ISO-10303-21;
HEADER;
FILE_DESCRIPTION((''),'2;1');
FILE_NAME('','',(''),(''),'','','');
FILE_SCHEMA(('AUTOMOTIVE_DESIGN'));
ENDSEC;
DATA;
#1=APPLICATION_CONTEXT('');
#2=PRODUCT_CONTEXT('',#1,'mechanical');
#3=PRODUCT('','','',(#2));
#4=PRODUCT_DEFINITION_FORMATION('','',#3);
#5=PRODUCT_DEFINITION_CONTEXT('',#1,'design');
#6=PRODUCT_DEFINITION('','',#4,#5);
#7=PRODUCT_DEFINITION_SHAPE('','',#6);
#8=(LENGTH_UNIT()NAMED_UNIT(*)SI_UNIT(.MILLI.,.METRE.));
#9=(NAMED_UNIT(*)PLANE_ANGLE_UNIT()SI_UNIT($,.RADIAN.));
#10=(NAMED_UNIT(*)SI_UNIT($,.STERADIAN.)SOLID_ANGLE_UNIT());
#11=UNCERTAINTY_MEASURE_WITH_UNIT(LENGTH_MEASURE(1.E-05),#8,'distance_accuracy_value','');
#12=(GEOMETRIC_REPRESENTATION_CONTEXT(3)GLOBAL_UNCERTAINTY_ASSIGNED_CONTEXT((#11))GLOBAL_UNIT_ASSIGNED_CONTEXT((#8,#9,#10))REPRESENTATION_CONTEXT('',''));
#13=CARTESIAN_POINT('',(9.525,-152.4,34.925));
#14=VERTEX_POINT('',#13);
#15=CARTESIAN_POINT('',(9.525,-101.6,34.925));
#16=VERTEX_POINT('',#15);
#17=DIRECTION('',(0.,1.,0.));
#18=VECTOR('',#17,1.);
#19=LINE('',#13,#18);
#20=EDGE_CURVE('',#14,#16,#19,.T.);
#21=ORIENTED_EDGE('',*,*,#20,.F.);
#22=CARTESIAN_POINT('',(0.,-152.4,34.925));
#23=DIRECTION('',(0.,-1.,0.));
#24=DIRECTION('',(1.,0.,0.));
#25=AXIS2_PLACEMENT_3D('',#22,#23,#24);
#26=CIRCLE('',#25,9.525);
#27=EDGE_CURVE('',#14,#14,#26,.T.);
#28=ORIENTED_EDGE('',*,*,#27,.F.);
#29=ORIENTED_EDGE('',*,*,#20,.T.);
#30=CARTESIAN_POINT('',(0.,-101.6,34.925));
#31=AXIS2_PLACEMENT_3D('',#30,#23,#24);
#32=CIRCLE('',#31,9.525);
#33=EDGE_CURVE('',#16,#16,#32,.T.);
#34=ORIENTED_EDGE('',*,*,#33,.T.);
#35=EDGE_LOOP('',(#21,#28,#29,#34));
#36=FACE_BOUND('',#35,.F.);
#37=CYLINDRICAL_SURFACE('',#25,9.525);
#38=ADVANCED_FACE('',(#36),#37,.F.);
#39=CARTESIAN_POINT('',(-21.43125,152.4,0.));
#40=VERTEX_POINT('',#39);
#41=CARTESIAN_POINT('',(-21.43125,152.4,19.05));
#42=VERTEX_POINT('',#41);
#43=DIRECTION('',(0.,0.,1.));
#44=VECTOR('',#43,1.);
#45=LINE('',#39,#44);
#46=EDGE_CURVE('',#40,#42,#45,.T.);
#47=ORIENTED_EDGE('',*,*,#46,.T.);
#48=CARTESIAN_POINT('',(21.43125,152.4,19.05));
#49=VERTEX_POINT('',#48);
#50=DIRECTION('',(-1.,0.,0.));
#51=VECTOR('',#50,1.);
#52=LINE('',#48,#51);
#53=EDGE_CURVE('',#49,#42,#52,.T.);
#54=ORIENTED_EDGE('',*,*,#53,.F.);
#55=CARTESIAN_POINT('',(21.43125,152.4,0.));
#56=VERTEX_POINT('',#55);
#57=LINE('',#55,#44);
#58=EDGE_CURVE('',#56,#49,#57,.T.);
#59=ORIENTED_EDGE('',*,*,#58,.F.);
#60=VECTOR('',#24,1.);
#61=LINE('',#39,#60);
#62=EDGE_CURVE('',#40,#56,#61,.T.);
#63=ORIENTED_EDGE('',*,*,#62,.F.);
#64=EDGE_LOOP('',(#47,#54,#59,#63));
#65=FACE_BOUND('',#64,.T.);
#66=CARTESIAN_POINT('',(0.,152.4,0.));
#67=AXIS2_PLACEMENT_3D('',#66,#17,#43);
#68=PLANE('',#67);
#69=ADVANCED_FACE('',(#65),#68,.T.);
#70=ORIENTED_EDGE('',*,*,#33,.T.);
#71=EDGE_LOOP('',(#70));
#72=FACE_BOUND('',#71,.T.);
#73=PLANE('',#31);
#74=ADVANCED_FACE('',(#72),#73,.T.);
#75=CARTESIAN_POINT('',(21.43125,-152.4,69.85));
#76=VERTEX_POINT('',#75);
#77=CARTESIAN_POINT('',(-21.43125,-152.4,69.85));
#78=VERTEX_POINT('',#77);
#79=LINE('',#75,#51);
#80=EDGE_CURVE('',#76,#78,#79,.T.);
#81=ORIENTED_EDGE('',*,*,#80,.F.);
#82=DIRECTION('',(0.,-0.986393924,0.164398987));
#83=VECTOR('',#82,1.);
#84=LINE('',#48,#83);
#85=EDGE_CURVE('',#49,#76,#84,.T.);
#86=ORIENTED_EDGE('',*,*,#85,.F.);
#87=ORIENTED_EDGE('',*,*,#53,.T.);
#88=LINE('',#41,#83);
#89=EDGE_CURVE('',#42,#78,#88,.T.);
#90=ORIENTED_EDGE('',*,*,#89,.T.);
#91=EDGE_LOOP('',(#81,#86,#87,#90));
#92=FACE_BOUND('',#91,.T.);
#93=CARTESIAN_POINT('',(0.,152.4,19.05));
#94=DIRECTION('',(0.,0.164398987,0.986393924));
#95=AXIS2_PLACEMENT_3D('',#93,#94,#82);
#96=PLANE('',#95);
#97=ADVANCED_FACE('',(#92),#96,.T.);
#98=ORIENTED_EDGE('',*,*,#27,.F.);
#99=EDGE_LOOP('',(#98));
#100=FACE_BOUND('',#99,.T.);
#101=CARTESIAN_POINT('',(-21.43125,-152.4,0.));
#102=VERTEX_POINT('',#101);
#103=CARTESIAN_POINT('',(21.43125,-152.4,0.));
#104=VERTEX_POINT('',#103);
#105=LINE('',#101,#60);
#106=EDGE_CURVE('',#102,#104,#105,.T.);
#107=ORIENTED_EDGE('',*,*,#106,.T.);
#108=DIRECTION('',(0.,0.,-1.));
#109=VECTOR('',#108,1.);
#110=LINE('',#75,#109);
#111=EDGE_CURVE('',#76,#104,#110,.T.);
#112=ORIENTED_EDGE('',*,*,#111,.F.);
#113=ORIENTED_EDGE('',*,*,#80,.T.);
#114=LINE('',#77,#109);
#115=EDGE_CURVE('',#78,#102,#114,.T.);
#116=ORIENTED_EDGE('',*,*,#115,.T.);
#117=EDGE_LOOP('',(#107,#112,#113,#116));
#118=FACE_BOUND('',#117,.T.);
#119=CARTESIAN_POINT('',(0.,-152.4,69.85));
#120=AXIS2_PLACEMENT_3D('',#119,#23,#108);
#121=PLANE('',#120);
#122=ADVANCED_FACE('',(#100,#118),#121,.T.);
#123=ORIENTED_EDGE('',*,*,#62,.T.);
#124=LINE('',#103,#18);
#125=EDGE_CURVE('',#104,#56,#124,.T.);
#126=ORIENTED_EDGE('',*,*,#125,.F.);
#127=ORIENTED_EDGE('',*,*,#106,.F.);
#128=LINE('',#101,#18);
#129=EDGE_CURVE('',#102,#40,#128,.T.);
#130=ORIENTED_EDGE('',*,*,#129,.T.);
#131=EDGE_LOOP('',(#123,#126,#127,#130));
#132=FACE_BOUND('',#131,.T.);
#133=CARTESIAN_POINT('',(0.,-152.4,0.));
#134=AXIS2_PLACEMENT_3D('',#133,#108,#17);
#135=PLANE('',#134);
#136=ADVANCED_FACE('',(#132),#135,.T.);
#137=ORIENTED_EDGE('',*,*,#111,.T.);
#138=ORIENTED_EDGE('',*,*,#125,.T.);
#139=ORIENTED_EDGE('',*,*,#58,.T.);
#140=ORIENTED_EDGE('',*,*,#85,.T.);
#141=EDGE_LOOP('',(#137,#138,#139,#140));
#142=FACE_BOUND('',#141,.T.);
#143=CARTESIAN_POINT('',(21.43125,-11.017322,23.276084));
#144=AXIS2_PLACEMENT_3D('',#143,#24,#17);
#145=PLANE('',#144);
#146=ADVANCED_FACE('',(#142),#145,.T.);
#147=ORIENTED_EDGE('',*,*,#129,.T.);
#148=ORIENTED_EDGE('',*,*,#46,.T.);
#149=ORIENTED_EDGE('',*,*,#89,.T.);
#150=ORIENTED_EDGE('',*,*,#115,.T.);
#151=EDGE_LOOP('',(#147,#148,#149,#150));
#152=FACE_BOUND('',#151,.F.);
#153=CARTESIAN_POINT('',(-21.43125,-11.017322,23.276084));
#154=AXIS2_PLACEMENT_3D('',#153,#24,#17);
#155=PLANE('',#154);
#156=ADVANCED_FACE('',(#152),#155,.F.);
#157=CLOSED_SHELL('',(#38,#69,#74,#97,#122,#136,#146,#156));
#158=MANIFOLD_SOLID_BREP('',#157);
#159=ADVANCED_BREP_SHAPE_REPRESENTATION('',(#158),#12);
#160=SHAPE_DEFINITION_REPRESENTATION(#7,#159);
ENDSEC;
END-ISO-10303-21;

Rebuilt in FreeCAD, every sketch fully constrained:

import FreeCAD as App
import Part
import Sketcher
Q = App.Units.Quantity


def add_polygon(sketch, points):
    """Adds a closed chain of lines whose ends are joined by coincident constraints."""
    first, n = sketch.GeometryCount, len(points)
    for a, b in zip(points, points[1:] + points[:1]):
        sketch.addGeometry(Part.LineSegment(App.Vector(*a, 0), App.Vector(*b, 0)), False)
    for i in range(n):
        sketch.addConstraint(Sketcher.Constraint("Coincident", first + i, 2, first + (i + 1) % n, 1))

doc = App.newDocument("Part")
body = doc.addObject("PartDesign::Body", "Body")

# Sketch on YZ plane
sketch1 = body.newObject("Sketcher::SketchObject", "Sketch")
sketch1.AttachmentSupport = (doc.getObject("YZ_Plane"), [""])
sketch1.MapMode = "FlatFace"
add_polygon(sketch1, [(-152, 70), (-152, 0), (152, 0), (152, 19)])  # lines 0-3
sketch1.addConstraint(Sketcher.Constraint("Vertical", 0))
sketch1.addConstraint(Sketcher.Constraint("Horizontal", 1))
sketch1.addConstraint(Sketcher.Constraint("Vertical", 2))
sketch1.addConstraint(Sketcher.Constraint("Symmetric", 0, 2, 1, 2, -1, 1))
sketch1.addConstraint(Sketcher.Constraint("DistanceX", 1, 1, 1, 2, Q("12 in")))
sketch1.addConstraint(Sketcher.Constraint("DistanceY", 2, 2, 3, 2, Q("2 in")))
sketch1.addConstraint(Sketcher.Constraint("DistanceY", 0, 2, 0, 1, Q("2.75 in")))
pad1 = body.newObject("PartDesign::Pad", "Pad")
pad1.Profile = sketch1
pad1.Length = Q("1.6875 in")
pad1.Midplane = True

# Sketch on XZ plane
sketch2 = body.newObject("Sketcher::SketchObject", "Sketch001")
sketch2.AttachmentSupport = (doc.getObject("XZ_Plane"), [""])
sketch2.MapMode = "FlatFace"
sketch2.AttachmentOffset = App.Placement(App.Vector(0, 0, 6 * 25.4), App.Rotation())
sketch2.addGeometry(Part.Circle(App.Vector(0, 35, 0), App.Vector(0, 0, 1), 10), False)
sketch2.addConstraint(Sketcher.Constraint("PointOnObject", 0, 3, -2))
sketch2.addConstraint(Sketcher.Constraint("Diameter", 0, Q("0.75 in")))
sketch2.addConstraint(Sketcher.Constraint("DistanceY", -1, 1, 0, 3, Q("1.375 in")))
pocket1 = body.newObject("PartDesign::Pocket", "Pocket")
pocket1.Profile = sketch2
pocket1.Length = Q("2 in")

doc.recompute()
